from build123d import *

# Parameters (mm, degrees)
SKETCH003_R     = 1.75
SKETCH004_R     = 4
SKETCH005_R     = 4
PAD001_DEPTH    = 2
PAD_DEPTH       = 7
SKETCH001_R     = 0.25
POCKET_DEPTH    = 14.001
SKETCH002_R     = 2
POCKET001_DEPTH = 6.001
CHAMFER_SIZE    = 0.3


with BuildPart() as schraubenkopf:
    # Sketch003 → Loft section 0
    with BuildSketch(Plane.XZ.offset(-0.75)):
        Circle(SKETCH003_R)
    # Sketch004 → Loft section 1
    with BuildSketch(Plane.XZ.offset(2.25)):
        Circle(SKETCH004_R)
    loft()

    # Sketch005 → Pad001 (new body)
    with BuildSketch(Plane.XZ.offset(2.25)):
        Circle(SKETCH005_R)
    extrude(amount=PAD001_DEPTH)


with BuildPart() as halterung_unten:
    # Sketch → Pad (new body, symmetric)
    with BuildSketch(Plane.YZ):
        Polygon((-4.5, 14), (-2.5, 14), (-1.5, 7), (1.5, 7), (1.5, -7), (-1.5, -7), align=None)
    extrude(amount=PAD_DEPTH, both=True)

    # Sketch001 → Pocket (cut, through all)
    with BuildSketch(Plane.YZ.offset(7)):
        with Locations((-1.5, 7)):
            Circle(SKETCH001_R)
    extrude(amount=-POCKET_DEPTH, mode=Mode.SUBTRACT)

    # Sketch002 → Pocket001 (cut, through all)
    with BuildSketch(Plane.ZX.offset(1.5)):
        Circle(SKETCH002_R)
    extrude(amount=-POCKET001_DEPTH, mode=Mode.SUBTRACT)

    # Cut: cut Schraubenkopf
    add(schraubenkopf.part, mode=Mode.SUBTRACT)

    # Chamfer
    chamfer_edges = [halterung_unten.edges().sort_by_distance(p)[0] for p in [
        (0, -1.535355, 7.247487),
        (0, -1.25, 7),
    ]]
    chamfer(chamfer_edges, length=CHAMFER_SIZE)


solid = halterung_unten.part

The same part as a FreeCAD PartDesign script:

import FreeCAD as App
import Part
import Sketcher


def edges_at(feature, points):
    """Names of the edges that pass closest to the given points."""
    edges = feature.Shape.Edges
    near = lambda p: min(range(len(edges)), key=lambda i: edges[i].distToShape(Part.Vertex(*p))[0])
    return sorted({f"Edge{near(p) + 1}" for p in points})


def add_polygon(sketch, points):
    """Adds a closed chain of lines whose ends are joined by coincident constraints."""
    first, n = sketch.GeometryCount, len(points)
    for a, b in zip(points, points[1:] + points[:1]):
        sketch.addGeometry(Part.LineSegment(App.Vector(*a, 0), App.Vector(*b, 0)), False)
    for i in range(n):
        sketch.addConstraint(Sketcher.Constraint("Coincident", first + i, 2, first + (i + 1) % n, 1))

doc = App.newDocument("Part")
body = doc.addObject("PartDesign::Body", "Body")

# Sketch on XZ plane
sketch1 = body.newObject("Sketcher::SketchObject", "Sketch")
sketch1.AttachmentSupport = (doc.getObject("XZ_Plane"), [""])
sketch1.MapMode = "FlatFace"
sketch1.AttachmentOffset = App.Placement(App.Vector(0, 0, -0.75), App.Rotation())
sketch1.addGeometry(Part.Circle(App.Vector(0, 0, 0), App.Vector(0, 0, 1), 1.8), False)
sketch1.addConstraint([
    Sketcher.Constraint("Coincident", 0, 3, -1, 1),
    Sketcher.Constraint("Diameter", 0, 3.5),
])

# Sketch on XZ plane
sketch2 = body.newObject("Sketcher::SketchObject", "Sketch001")
sketch2.AttachmentSupport = (doc.getObject("XZ_Plane"), [""])
sketch2.MapMode = "FlatFace"
sketch2.AttachmentOffset = App.Placement(App.Vector(0, 0, 2.25), App.Rotation())
sketch2.addGeometry(Part.Circle(App.Vector(0, 0, 0), App.Vector(0, 0, 1), 4), False)
sketch2.addConstraint([
    Sketcher.Constraint("Coincident", 0, 3, -1, 1),
    Sketcher.Constraint("Diameter", 0, 8.0),
])

additiveloft = body.newObject("PartDesign::AdditiveLoft", "AdditiveLoft")
additiveloft.Profile = sketch1
additiveloft.Sections = [sketch2]

# Sketch on XZ plane
sketch3 = body.newObject("Sketcher::SketchObject", "Sketch002")
sketch3.AttachmentSupport = (doc.getObject("XZ_Plane"), [""])
sketch3.MapMode = "FlatFace"
sketch3.AttachmentOffset = App.Placement(App.Vector(0, 0, 2.25), App.Rotation())
sketch3.addGeometry(Part.Circle(App.Vector(0, 0, 0), App.Vector(0, 0, 1), 4), False)
sketch3.addConstraint([
    Sketcher.Constraint("Coincident", 0, 3, -1, 1),
    Sketcher.Constraint("Diameter", 0, 8.0),
])
pad1 = body.newObject("PartDesign::Pad", "Pad")
pad1.Profile = sketch3
pad1.Length = 2
body2 = doc.addObject("PartDesign::Body", "Body001")

# Sketch on YZ plane
sketch4 = body2.newObject("Sketcher::SketchObject", "Sketch003")
sketch4.AttachmentSupport = (doc.getObject("YZ_Plane001"), [""])
sketch4.MapMode = "FlatFace"
add_polygon(sketch4, [(-2.5, 14), (-4.5, 14), (-1.5, -7), (1.5, -7), (1.5, 7), (-1.5, 7)])  # lines 0-5
sketch4.addConstraint([
    Sketcher.Constraint("Horizontal", 0),
    Sketcher.Constraint("Horizontal", 2),
    Sketcher.Constraint("Vertical", 3),
    Sketcher.Constraint("Horizontal", 4),
    Sketcher.Constraint("Symmetric", 1, 2, 3, 2, -1, 1),
    Sketcher.Constraint("Parallel", 1, 5),
    Sketcher.Constraint("Vertical", 1, 2, 4, 2),
    Sketcher.Constraint("DistanceX", 0, 2, 0, 1, 2.0),
    Sketcher.Constraint("DistanceX", 2, 1, 2, 2, 3.0),
    Sketcher.Constraint("DistanceY", 3, 1, 3, 2, 14.0),
    Sketcher.Constraint("DistanceY", -1, 1, 0, 2, 14.0),
])
pad2 = body2.newObject("PartDesign::Pad", "Pad001")
pad2.Profile = sketch4
pad2.Length = 14
pad2.Midplane = True

# Sketch on YZ plane
sketch5 = body2.newObject("Sketcher::SketchObject", "Sketch004")
sketch5.AttachmentSupport = (doc.getObject("YZ_Plane001"), [""])
sketch5.MapMode = "FlatFace"
sketch5.AttachmentOffset = App.Placement(App.Vector(0, 0, 7), App.Rotation())
sketch5.addGeometry(Part.Circle(App.Vector(-1.5, 7, 0), App.Vector(0, 0, 1), 0.25), False)
sketch5.addConstraint([
    Sketcher.Constraint("Diameter", 0, 0.5),
    Sketcher.Constraint("DistanceY", -1, 1, 0, 3, 7.0),
    Sketcher.Constraint("DistanceX", 0, 3, -1, 1, 1.5),
])
pocket1 = body2.newObject("PartDesign::Pocket", "Pocket")
pocket1.Profile = sketch5
pocket1.Type = "ThroughAll"

# Sketch on XZ plane
sketch6 = body2.newObject("Sketcher::SketchObject", "Sketch005")
sketch6.AttachmentSupport = (doc.getObject("XZ_Plane001"), [""])
sketch6.MapMode = "FlatFace"
sketch6.AttachmentOffset = App.Placement(App.Vector(0, 0, -1.5), App.Rotation())
sketch6.addGeometry(Part.Circle(App.Vector(0, 0, 0), App.Vector(0, 0, 1), 2), False)
sketch6.addConstraint([
    Sketcher.Constraint("Coincident", 0, 3, -1, 1),
    Sketcher.Constraint("Diameter", 0, 4.0),
])
pocket2 = body2.newObject("PartDesign::Pocket", "Pocket001")
pocket2.Profile = sketch6
pocket2.Type = "ThroughAll"
pocket2.Reversed = True
doc.recompute()

boolean = body2.newObject("PartDesign::Boolean", "Boolean")
boolean.Type = "Cut"
boolean.addObjects([body])
doc.recompute()

chamfer = body2.newObject("PartDesign::Chamfer", "Chamfer")
chamfer.Base = (boolean, edges_at(boolean, [(0, -1.535, 7.247), (0, -1.25, 7)]))
chamfer.Size = 0.3

doc.recompute()
